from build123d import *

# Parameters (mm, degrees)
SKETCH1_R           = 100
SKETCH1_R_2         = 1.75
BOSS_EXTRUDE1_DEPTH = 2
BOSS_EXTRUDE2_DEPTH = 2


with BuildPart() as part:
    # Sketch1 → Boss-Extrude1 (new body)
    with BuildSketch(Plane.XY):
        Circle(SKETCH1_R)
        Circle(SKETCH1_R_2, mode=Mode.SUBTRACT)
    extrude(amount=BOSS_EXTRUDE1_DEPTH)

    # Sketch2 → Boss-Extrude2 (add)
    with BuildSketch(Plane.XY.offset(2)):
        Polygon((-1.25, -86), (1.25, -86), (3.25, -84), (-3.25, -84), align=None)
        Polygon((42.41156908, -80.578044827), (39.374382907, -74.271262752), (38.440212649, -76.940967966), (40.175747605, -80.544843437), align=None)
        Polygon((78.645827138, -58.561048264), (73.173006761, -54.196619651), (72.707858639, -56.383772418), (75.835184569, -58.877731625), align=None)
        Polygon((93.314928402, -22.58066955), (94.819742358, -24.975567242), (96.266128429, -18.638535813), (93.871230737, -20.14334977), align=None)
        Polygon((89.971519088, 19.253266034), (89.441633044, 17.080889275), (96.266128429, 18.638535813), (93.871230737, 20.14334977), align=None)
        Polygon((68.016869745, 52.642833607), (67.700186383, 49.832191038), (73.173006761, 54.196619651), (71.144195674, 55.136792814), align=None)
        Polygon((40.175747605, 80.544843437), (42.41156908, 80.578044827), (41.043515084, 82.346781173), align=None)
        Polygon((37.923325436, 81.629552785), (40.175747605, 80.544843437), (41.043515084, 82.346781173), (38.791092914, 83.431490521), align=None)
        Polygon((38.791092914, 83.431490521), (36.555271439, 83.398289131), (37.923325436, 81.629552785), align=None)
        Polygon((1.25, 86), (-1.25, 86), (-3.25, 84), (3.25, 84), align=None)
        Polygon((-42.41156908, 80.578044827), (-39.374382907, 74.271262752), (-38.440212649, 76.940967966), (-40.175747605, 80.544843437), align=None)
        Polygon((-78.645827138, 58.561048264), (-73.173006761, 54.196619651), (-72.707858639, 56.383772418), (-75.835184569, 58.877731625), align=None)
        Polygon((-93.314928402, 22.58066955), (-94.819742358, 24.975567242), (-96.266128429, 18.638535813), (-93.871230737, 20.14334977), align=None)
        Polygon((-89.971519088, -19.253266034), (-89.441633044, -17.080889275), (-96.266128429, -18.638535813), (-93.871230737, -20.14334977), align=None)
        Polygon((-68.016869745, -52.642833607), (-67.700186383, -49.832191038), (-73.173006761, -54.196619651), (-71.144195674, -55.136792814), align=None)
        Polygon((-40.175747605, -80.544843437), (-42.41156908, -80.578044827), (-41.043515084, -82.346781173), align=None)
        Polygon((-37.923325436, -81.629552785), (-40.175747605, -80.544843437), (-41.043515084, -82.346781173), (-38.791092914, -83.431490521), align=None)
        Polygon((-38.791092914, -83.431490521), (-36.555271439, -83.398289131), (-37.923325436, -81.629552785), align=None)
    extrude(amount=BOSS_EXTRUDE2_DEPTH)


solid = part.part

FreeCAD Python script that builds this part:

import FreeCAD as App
import Part
import Sketcher
from FreeCAD import Vector
Q = App.Units.Quantity


def add_polygon(sketch, points):
    """Adds a closed chain of lines whose ends are joined by coincident constraints."""
    first, n = sketch.GeometryCount, len(points)
    for a, b in zip(points, points[1:] + points[:1]):
        sketch.addGeometry(Part.LineSegment(App.Vector(*a, 0), App.Vector(*b, 0)), False)
    for i in range(n):
        sketch.addConstraint(Sketcher.Constraint("Coincident", first + i, 2, first + (i + 1) % n, 1))

doc = App.newDocument("Part")
params = doc.addObject("Spreadsheet::Sheet", "Params")
for row, (alias, value) in enumerate([
    ("sketch1_diameter", "200 mm"),
    ("sketch1_diameter2", "3.5 mm"),
    ("pad1_length", "2 mm"),
    ("sketch2_length", "7 mm"),
    ("sketch2_length2", "4 mm"),
    ("sketch2_width", "2.5 mm"),
    ("sketch2_width2", "6.5 mm"),
    ("sketch2_length3", "6.5 mm"),
    ("pad2_length", "2 mm"),
], start=1):
    params.set(f"A{row}", alias)
    params.set(f"B{row}", "=" + value)
    params.setAlias(f"B{row}", alias)

body = doc.addObject("PartDesign::Body", "Body")

# Sketch on XY plane
sketch1 = body.newObject("Sketcher::SketchObject", "Sketch")
sketch1.AttachmentSupport = (doc.getObject("XY_Plane"), [""])
sketch1.MapMode = "FlatFace"
sketch1.addGeometry(Part.Circle(Vector(0, 0, 0), Vector(0, 0, 1), 100), False)
sketch1.addGeometry(Part.Circle(Vector(0, 0, 0), Vector(0, 0, 1), 1.8), False)
sketch1.addConstraint(Sketcher.Constraint("Coincident", 0, 3, -1, 1))
sketch1.addConstraint(Sketcher.Constraint("Coincident", 1, 3, -1, 1))
sketch1.addConstraint(Sketcher.Constraint("Diameter", 0, Q("200 mm")))
sketch1.addConstraint(Sketcher.Constraint("Diameter", 1, Q("3.5 mm")))
sketch1.setExpression("Constraints[2]", "Params.sketch1_diameter")
sketch1.setExpression("Constraints[3]", "Params.sketch1_diameter2")
pad1 = body.newObject("PartDesign::Pad", "Pad")
pad1.Profile = sketch1
pad1.setExpression("Length", "Params.pad1_length")

# Sketch on XY plane
sketch2 = body.newObject("Sketcher::SketchObject", "Sketch001")
sketch2.AttachmentSupport = (doc.getObject("XY_Plane"), [""])
sketch2.MapMode = "FlatFace"
sketch2.AttachmentOffset = App.Placement(Vector(0, 0, 2), App.Rotation())
add_polygon(sketch2, [(-1.2, -86), (1.2, -86), (3.2, -84), (-3.2, -84)])  # lines 0-3
add_polygon(sketch2, [(42.4, -80.6), (39.4, -74.3), (38.4, -76.9), (40.2, -80.5)])  # lines 4-7
add_polygon(sketch2, [(78.6, -58.6), (73.2, -54.2), (72.7, -56.4), (75.8, -58.9)])  # lines 8-11
add_polygon(sketch2, [(93.3, -22.6), (94.8, -25), (96.3, -18.6), (93.9, -20.1)])  # lines 12-15
add_polygon(sketch2, [(90, 19.3), (89.4, 17.1), (96.3, 18.6), (93.9, 20.1)])  # lines 16-19
add_polygon(sketch2, [(68, 52.6), (67.7, 49.8), (73.2, 54.2), (71.1, 55.1)])  # lines 20-23
add_polygon(sketch2, [(40.2, 80.5), (42.4, 80.6), (41, 82.3), (38.8, 83.4), (36.6, 83.4), (37.9, 81.6)])  # lines 24-29
add_polygon(sketch2, [(1.2, 86), (-1.2, 86), (-3.2, 84), (3.2, 84)])  # lines 30-33
add_polygon(sketch2, [(-42.4, 80.6), (-39.4, 74.3), (-38.4, 76.9), (-40.2, 80.5)])  # lines 34-37
add_polygon(sketch2, [(-78.6, 58.6), (-73.2, 54.2), (-72.7, 56.4), (-75.8, 58.9)])  # lines 38-41
add_polygon(sketch2, [(-93.3, 22.6), (-94.8, 25), (-96.3, 18.6), (-93.9, 20.1)])  # lines 42-45
add_polygon(sketch2, [(-90, -19.3), (-89.4, -17.1), (-96.3, -18.6), (-93.9, -20.1)])  # lines 46-49
add_polygon(sketch2, [(-68, -52.6), (-67.7, -49.8), (-73.2, -54.2), (-71.1, -55.1)])  # lines 50-53
add_polygon(sketch2, [(-40.2, -80.5), (-42.4, -80.6), (-41, -82.3), (-38.8, -83.4), (-36.6, -83.4), (-37.9, -81.6)])  # lines 54-59
sketch2.addConstraint(Sketcher.Constraint("Horizontal", 0))
sketch2.addConstraint(Sketcher.Constraint("Horizontal", 2))
sketch2.addConstraint(Sketcher.Constraint("Horizontal", 30))
sketch2.addConstraint(Sketcher.Constraint("Horizontal", 32))
sketch2.addConstraint(Sketcher.Constraint("Symmetric", 0, 2, 30, 2, -1, 1))
sketch2.addConstraint(Sketcher.Constraint("Symmetric", 1, 2, 31, 2, -1, 1))
sketch2.addConstraint(Sketcher.Constraint("Symmetric", 4, 2, 34, 2, -1, 1))
sketch2.addConstraint(Sketcher.Constraint("Symmetric", 5, 2, 35, 2, -1, 1))
sketch2.addConstraint(Sketcher.Constraint("Symmetric", 6, 2, 36, 2, -1, 1))
sketch2.addConstraint(Sketcher.Constraint("Symmetric", 7, 2, 37, 2, -1, 1))
sketch2.addConstraint(Sketcher.Constraint("Symmetric", 8, 2, 38, 2, -1, 1))
sketch2.addConstraint(Sketcher.Constraint("Symmetric", 9, 2, 39, 2, -1, 1))
sketch2.addConstraint(Sketcher.Constraint("Symmetric", 10, 2, 40, 2, -1, 1))
sketch2.addConstraint(Sketcher.Constraint("Symmetric", 11, 2, 41, 2, -1, 1))
sketch2.addConstraint(Sketcher.Constraint("Symmetric", 12, 2, 42, 2, -1, 1))
sketch2.addConstraint(Sketcher.Constraint("Symmetric", 13, 2, 43, 2, -1, 1))
sketch2.addConstraint(Sketcher.Constraint("Symmetric", 14, 2, 44, 2, -1, 1))
sketch2.addConstraint(Sketcher.Constraint("Symmetric", 15, 2, 45, 2, -1, 1))
sketch2.addConstraint(Sketcher.Constraint("Symmetric", 16, 2, 46, 2, -1, 1))
sketch2.addConstraint(Sketcher.Constraint("Symmetric", 17, 2, 47, 2, -1, 1))
sketch2.addConstraint(Sketcher.Constraint("Symmetric", 18, 2, 48, 2, -1, 1))
sketch2.addConstraint(Sketcher.Constraint("Symmetric", 19, 2, 49, 2, -1, 1))
sketch2.addConstraint(Sketcher.Constraint("Symmetric", 20, 2, 50, 2, -1, 1))
sketch2.addConstraint(Sketcher.Constraint("Symmetric", 21, 2, 51, 2, -1, 1))
sketch2.addConstraint(Sketcher.Constraint("Symmetric", 22, 2, 52, 2, -1, 1))
sketch2.addConstraint(Sketcher.Constraint("Symmetric", 23, 2, 53, 2, -1, 1))
sketch2.addConstraint(Sketcher.Constraint("Symmetric", 24, 2, 54, 2, -1, 1))
sketch2.addConstraint(Sketcher.Constraint("Symmetric", 25, 2, 55, 2, -1, 1))
sketch2.addConstraint(Sketcher.Constraint("Symmetric", 26, 2, 56, 2, -1, 1))
sketch2.addConstraint(Sketcher.Constraint("Symmetric", 27, 2, 57, 2, -1, 1))
sketch2.addConstraint(Sketcher.Constraint("Symmetric", 28, 2, 58, 2, -1, 1))
sketch2.addConstraint(Sketcher.Constraint("Symmetric", 29, 2, 59, 2, -1, 1))
sketch2.addConstraint(Sketcher.Constraint("Symmetric", 29, 2, 36, 2, -2))
sketch2.addConstraint(Sketcher.Constraint("Symmetric", 24, 2, 37, 2, -2))
sketch2.addConstraint(Sketcher.Constraint("Symmetric", 21, 2, 38, 2, -2))
sketch2.addConstraint(Sketcher.Constraint("Symmetric", 17, 2, 43, 2, -2))
sketch2.addConstraint(Sketcher.Constraint("Symmetric", 18, 2, 44, 2, -2))
sketch2.addConstraint(Sketcher.Constraint("Perpendicular", 1, 3))
sketch2.addConstraint(Sketcher.Constraint("Parallel", 4, 6))
sketch2.addConstraint(Sketcher.Constraint("Parallel", 8, 10))
sketch2.addConstraint(Sketcher.Constraint("Perpendicular", 12, 14))
sketch2.addConstraint(Sketcher.Constraint("Parallel", 13, 15))
sketch2.addConstraint(Sketcher.Constraint("Parallel", 17, 19))
sketch2.addConstraint(Sketcher.Constraint("Parallel", 21, 23))
sketch2.addConstraint(Sketcher.Constraint("Parallel", 24, 27))
sketch2.addConstraint(Sketcher.Constraint("Parallel", 25, 28))
sketch2.addConstraint(Sketcher.Constraint("Parallel", 26, 29))
sketch2.addConstraint(Sketcher.Constraint("Perpendicular", 31, 33))
sketch2.addConstraint(Sketcher.Constraint("Vertical", 3, 2, 30, 2))
sketch2.addConstraint(Sketcher.Constraint("Vertical", 2, 2, 31, 2))
sketch2.addConstraint(Sketcher.Constraint("Vertical", 1, 2, 32, 2))
sketch2.addConstraint(Sketcher.Constraint("Equal", 3, 5))
sketch2.addConstraint(Sketcher.Constraint("Equal", 4, 8))
sketch2.addConstraint(Sketcher.Constraint("Equal", 7, 9))
sketch2.addConstraint(Sketcher.Constraint("Equal", 6, 10))
sketch2.addConstraint(Sketcher.Constraint("Equal", 5, 11))
sketch2.addConstraint(Sketcher.Constraint("Equal", 11, 12))
sketch2.addConstraint(Sketcher.Constraint("Equal", 12, 14))
sketch2.addConstraint(Sketcher.Constraint("Equal", 9, 16))
sketch2.addConstraint(Sketcher.Constraint("Equal", 8, 17))
sketch2.addConstraint(Sketcher.Constraint("Equal", 10, 19))
sketch2.addConstraint(Sketcher.Constraint("Equal", 18, 20))
sketch2.addConstraint(Sketcher.Constraint("Equal", 17, 21))
sketch2.addConstraint(Sketcher.Constraint("Equal", 16, 22))
sketch2.addConstraint(Sketcher.Constraint("Equal", 19, 23))
sketch2.addConstraint(Sketcher.Constraint("Equal", 24, 25))
sketch2.addConstraint(Sketcher.Constraint("Equal", 15, 26))
sketch2.addConstraint(Sketcher.Constraint("Equal", 25, 27))
sketch2.addConstraint(Sketcher.Constraint("Distance", 4, Q("7 mm")))
sketch2.addConstraint(Sketcher.Constraint("Distance", 6, Q("4 mm")))
sketch2.addConstraint(Sketcher.Constraint("DistanceX", 0, 1, 0, 2, Q("2.5 mm")))
sketch2.addConstraint(Sketcher.Constraint("DistanceX", 2, 2, 2, 1, Q("6.5 mm")))
sketch2.addConstraint(Sketcher.Constraint("DistanceY", 0, 2, -1, 1, Q("86 mm")))
sketch2.addConstraint(Sketcher.Constraint("Distance", 13, Q("6.5 mm")))
sketch2.addConstraint(Sketcher.Constraint("DistanceY", 7, 2, 6, 2, Q("0.033201 mm")))
sketch2.addConstraint(Sketcher.Constraint("DistanceX", 4, 2, 10, 2, Q("36.460802 mm")))
sketch2.addConstraint(Sketcher.Constraint("DistanceX", 11, 2, 13, 2, Q("17.620301 mm")))
sketch2.addConstraint(Sketcher.Constraint("DistanceY", 11, 2, 14, 2, Q("38.417698 mm")))
sketch2.addConstraint(Sketcher.Constraint("DistanceX", 15, 2, 13, 2, Q("2.9512 mm")))
sketch2.addConstraint(Sketcher.Constraint("DistanceY", 14, 2, 18, 2, Q("40.2867 mm")))
sketch2.addConstraint(Sketcher.Constraint("DistanceY", 13, 2, 19, 2, Q("37.891802 mm")))
sketch2.addConstraint(Sketcher.Constraint("DistanceY", 16, 2, 20, 2, Q("32.751302 mm")))
sketch2.addConstraint(Sketcher.Constraint("DistanceY", 20, 2, 22, 2, Q("5.304602 mm")))
sketch2.addConstraint(Sketcher.Constraint("DistanceY", 20, 2, 26, 2, Q("33.599299 mm")))
sketch2.addConstraint(Sketcher.Constraint("DistanceX", 27, 2, 23, 2, Q("31.461598 mm")))
sketch2.addConstraint(Sketcher.Constraint("DistanceX", -1, 1, 7, 2, Q("42.411569 mm")))
sketch2.addConstraint(Sketcher.Constraint("DistanceY", -1, 1, 25, 2, Q("82.346781 mm")))
sketch2.setExpression("Constraints[128]", "Params.sketch2_length")
sketch2.setExpression("Constraints[129]", "Params.sketch2_length2")
sketch2.setExpression("Constraints[130]", "Params.sketch2_width")
sketch2.setExpression("Constraints[131]", "Params.sketch2_width2")
sketch2.setExpression("Constraints[133]", "Params.sketch2_length3")
pad2 = body.newObject("PartDesign::Pad", "Pad001")
pad2.Profile = sketch2
pad2.setExpression("Length", "Params.pad2_length")

doc.recompute()
